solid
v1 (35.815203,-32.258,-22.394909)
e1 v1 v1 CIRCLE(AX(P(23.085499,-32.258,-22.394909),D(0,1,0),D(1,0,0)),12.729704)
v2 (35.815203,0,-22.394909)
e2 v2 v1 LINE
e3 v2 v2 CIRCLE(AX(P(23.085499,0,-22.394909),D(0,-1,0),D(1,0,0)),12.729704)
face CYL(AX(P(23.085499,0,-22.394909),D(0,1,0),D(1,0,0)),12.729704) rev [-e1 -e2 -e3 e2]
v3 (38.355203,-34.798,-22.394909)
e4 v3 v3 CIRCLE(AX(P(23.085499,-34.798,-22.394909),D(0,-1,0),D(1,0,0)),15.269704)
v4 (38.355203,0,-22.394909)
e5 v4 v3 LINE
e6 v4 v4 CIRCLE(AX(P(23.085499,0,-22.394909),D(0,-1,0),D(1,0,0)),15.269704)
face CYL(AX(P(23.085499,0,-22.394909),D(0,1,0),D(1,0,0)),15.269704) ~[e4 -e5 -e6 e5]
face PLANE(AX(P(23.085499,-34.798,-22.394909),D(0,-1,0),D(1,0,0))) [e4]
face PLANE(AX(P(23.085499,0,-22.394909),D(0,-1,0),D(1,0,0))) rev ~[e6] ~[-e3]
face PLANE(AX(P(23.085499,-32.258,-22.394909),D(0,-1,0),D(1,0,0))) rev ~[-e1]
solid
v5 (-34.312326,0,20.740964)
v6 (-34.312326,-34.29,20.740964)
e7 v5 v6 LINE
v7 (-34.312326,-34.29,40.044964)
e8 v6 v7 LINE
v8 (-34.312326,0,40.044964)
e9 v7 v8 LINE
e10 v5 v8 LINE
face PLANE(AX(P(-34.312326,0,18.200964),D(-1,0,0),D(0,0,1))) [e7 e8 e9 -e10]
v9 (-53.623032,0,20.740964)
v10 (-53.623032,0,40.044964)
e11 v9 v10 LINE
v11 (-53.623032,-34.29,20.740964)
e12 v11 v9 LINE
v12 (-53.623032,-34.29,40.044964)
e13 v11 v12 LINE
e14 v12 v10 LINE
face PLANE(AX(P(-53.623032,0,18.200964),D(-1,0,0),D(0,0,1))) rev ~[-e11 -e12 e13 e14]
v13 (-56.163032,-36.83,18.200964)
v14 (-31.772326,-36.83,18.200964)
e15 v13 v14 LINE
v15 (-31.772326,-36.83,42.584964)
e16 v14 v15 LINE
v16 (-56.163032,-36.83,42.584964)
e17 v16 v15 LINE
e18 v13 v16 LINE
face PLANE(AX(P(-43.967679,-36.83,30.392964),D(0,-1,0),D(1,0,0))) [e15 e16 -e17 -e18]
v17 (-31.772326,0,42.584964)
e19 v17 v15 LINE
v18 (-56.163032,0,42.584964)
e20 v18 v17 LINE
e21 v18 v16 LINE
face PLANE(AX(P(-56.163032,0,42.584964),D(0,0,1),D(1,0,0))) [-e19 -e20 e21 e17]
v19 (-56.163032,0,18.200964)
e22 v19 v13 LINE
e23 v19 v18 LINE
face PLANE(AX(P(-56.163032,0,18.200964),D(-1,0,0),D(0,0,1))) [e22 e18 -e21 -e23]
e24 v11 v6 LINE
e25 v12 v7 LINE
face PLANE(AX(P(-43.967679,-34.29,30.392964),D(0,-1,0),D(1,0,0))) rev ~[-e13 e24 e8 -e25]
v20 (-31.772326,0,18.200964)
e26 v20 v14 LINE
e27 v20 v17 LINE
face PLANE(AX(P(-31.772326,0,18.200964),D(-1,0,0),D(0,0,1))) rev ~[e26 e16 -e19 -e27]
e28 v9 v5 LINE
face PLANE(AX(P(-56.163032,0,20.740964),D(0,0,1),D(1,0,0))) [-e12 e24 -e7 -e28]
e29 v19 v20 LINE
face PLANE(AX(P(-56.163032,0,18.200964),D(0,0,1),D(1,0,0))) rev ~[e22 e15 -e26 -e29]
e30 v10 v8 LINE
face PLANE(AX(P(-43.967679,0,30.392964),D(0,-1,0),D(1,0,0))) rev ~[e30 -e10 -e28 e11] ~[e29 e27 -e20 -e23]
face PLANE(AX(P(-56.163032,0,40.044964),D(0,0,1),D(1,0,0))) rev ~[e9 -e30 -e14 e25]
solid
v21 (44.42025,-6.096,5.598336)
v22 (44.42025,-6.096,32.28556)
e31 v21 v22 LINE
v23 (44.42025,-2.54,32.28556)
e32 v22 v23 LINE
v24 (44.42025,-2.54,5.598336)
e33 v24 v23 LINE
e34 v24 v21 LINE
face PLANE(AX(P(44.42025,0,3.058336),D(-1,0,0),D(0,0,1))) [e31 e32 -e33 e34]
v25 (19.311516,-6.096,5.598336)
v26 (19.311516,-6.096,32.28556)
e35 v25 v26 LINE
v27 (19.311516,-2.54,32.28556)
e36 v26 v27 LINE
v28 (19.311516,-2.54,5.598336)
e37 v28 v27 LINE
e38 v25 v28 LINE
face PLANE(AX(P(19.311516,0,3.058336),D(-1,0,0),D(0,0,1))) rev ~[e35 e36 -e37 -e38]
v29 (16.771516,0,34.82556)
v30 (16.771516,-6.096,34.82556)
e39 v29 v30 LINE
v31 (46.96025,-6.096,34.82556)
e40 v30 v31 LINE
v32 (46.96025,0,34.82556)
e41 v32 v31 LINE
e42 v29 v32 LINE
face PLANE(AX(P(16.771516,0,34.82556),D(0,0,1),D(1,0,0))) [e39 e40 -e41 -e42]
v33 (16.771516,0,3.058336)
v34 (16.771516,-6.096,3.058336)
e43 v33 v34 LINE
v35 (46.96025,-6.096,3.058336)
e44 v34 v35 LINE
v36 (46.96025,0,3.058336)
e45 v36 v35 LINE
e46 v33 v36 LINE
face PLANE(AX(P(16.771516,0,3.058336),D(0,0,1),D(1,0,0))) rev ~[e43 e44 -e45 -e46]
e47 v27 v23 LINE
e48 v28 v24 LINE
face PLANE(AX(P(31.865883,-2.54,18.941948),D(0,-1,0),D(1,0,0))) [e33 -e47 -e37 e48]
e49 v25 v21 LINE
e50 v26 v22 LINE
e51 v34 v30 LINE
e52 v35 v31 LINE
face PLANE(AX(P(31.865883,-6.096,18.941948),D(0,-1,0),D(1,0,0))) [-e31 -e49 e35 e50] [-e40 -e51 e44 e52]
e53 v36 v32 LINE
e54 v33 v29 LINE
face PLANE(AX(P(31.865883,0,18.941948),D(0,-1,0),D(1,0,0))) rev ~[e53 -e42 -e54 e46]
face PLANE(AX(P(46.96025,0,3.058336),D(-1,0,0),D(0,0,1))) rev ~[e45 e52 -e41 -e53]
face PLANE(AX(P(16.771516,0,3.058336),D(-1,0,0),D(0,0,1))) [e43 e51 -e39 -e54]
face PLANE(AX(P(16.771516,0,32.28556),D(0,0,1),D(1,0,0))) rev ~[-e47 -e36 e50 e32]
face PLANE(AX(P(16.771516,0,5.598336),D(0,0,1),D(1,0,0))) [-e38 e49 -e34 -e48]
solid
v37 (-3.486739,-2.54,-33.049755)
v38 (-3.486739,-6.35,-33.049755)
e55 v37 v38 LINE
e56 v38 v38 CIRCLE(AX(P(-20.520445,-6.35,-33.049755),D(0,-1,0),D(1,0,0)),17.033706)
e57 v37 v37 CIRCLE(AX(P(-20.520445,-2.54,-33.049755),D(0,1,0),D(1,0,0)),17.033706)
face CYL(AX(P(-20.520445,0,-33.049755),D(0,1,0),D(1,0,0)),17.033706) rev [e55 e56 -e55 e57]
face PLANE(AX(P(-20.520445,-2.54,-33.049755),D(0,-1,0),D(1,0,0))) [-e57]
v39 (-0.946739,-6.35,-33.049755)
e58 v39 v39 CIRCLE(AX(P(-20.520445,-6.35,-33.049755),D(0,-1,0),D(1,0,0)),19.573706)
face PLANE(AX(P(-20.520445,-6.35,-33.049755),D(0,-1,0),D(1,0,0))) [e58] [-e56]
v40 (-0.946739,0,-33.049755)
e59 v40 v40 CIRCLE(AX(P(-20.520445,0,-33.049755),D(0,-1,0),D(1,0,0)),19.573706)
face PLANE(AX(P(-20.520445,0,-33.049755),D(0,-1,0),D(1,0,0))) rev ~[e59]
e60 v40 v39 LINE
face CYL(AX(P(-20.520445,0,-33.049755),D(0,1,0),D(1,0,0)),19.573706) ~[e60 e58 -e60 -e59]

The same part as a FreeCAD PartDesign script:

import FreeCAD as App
import Part
import Sketcher
from FreeCAD import Vector
Q = App.Units.Quantity


def faces_at(feature, points):
    """Names of the faces that lie closest to the given points."""
    faces = feature.Shape.Faces
    near = lambda p: min(range(len(faces)), key=lambda i: faces[i].distToShape(Part.Vertex(*p))[0])
    return sorted({f"Face{near(p) + 1}" for p in points})

doc = App.newDocument("Part")
body = doc.addObject("PartDesign::Body", "Body")

sketch1 = body.newObject("Sketcher::SketchObject", "Sketch")
sketch1.AttachmentSupport = (doc.getObject("XZ_Plane"), [""])
sketch1.MapMode = "FlatFace"
sketch1.addGeometry([
    Part.LineSegment(Vector(-56, 43, 0), Vector(-56, 18, 0)),
    Part.LineSegment(Vector(-56, 18, 0), Vector(-32, 18, 0)),
    Part.LineSegment(Vector(-32, 18, 0), Vector(-32, 43, 0)),
    Part.LineSegment(Vector(-32, 43, 0), Vector(-56, 43, 0)),
], False)
sketch1.addConstraint([
    Sketcher.Constraint("Coincident", 0, 2, 1, 1),
    Sketcher.Constraint("Coincident", 1, 2, 2, 1),
    Sketcher.Constraint("Coincident", 2, 2, 3, 1),
    Sketcher.Constraint("Coincident", 3, 2, 0, 1),
    Sketcher.Constraint("Vertical", 0),
    Sketcher.Constraint("Horizontal", 1),
    Sketcher.Constraint("Vertical", 2),
    Sketcher.Constraint("Horizontal", 3),
    Sketcher.Constraint("DistanceY", 0, 2, 0, 1, Q("0.96 in")),
    Sketcher.Constraint("DistanceX", 1, 1, 1, 2, 24.390706),
    Sketcher.Constraint("DistanceX", 0, 2, -1, 1, 56.163032),
    Sketcher.Constraint("DistanceY", -1, 1, 0, 2, 18.200964),
])
pad1 = body.newObject("PartDesign::Pad", "Pad")
pad1.Profile = sketch1
pad1.Length = Q("1.45 in")
doc.recompute()

thickness = body.newObject("PartDesign::Thickness", "Thickness")
thickness.Base = (pad1, faces_at(pad1, [(-43.968, 0, 30.393)]))
thickness.Value = Q("0.1 in")
thickness.Reversed = True
thickness.Join = "Arc"
body2 = doc.addObject("PartDesign::Body", "Body001")

sketch2 = body2.newObject("Sketcher::SketchObject", "Sketch001")
sketch2.AttachmentSupport = (doc.getObject("XZ_Plane001"), [""])
sketch2.MapMode = "FlatFace"
sketch2.addGeometry([
    Part.LineSegment(Vector(17, 35, 0), Vector(17, 3, 0)),
    Part.LineSegment(Vector(17, 3, 0), Vector(47, 3, 0)),
    Part.LineSegment(Vector(47, 3, 0), Vector(47, 35, 0)),
    Part.LineSegment(Vector(47, 35, 0), Vector(17, 35, 0)),
], False)
sketch2.addConstraint([
    Sketcher.Constraint("Coincident", 0, 2, 1, 1),
    Sketcher.Constraint("Coincident", 1, 2, 2, 1),
    Sketcher.Constraint("Coincident", 2, 2, 3, 1),
    Sketcher.Constraint("Coincident", 3, 2, 0, 1),
    Sketcher.Constraint("Vertical", 0),
    Sketcher.Constraint("Horizontal", 1),
    Sketcher.Constraint("Vertical", 2),
    Sketcher.Constraint("Horizontal", 3),
    Sketcher.Constraint("DistanceX", 1, 1, 1, 2, 30.188734),
    Sketcher.Constraint("DistanceY", 0, 2, 0, 1, 31.767224),
    Sketcher.Constraint("DistanceX", -1, 1, 1, 2, 46.96025),
    Sketcher.Constraint("DistanceY", -1, 1, 2, 2, 34.82556),
])
pad2 = body2.newObject("PartDesign::Pad", "Pad001")
pad2.Profile = sketch2
pad2.Length = Q("0.24 in")
doc.recompute()

thickness2 = body2.newObject("PartDesign::Thickness", "Thickness001")
thickness2.Base = (pad2, faces_at(pad2, [(31.866, -6.096, 18.942)]))
thickness2.Value = Q("0.1 in")
thickness2.Reversed = True
thickness2.Join = "Arc"
body3 = doc.addObject("PartDesign::Body", "Body002")

sketch3 = body3.newObject("Sketcher::SketchObject", "Sketch002")
sketch3.AttachmentSupport = (doc.getObject("XZ_Plane002"), [""])
sketch3.MapMode = "FlatFace"
sketch3.addGeometry(Part.Circle(Vector(-21, -33, 0), Vector(0, 0, 1), 20), False)
sketch3.addConstraint([
    Sketcher.Constraint("Diameter", 0, 39.147412),
    Sketcher.Constraint("DistanceX", 0, 3, -1, 1, 20.520445),
    Sketcher.Constraint("DistanceY", 0, 3, -1, 1, 33.049755),
])
pad3 = body3.newObject("PartDesign::Pad", "Pad002")
pad3.Profile = sketch3
pad3.Length = Q("0.25 in")
doc.recompute()

thickness3 = body3.newObject("PartDesign::Thickness", "Thickness002")
thickness3.Base = (pad3, faces_at(pad3, [(-20.52, -6.35, -33.05)]))
thickness3.Value = Q("0.1 in")
thickness3.Reversed = True
thickness3.Join = "Arc"
body4 = doc.addObject("PartDesign::Body", "Body003")

sketch4 = body4.newObject("Sketcher::SketchObject", "Sketch003")
sketch4.AttachmentSupport = (doc.getObject("XZ_Plane003"), [""])
sketch4.MapMode = "FlatFace"
sketch4.addGeometry(Part.Circle(Vector(23, -22, 0), Vector(0, 0, 1), 15), False)
sketch4.addConstraint([
    Sketcher.Constraint("Diameter", 0, 30.539408),
    Sketcher.Constraint("DistanceX", -1, 1, 0, 3, 23.085499),
    Sketcher.Constraint("DistanceY", 0, 3, -1, 1, 22.394909),
])
pad4 = body4.newObject("PartDesign::Pad", "Pad003")
pad4.Profile = sketch4
pad4.Length = Q("1.37 in")
doc.recompute()

thickness4 = body4.newObject("PartDesign::Thickness", "Thickness003")
thickness4.Base = (pad4, faces_at(pad4, [(23.085, 0, -22.395)]))
thickness4.Value = Q("0.1 in")
thickness4.Reversed = True
thickness4.Join = "Arc"

doc.recompute()
